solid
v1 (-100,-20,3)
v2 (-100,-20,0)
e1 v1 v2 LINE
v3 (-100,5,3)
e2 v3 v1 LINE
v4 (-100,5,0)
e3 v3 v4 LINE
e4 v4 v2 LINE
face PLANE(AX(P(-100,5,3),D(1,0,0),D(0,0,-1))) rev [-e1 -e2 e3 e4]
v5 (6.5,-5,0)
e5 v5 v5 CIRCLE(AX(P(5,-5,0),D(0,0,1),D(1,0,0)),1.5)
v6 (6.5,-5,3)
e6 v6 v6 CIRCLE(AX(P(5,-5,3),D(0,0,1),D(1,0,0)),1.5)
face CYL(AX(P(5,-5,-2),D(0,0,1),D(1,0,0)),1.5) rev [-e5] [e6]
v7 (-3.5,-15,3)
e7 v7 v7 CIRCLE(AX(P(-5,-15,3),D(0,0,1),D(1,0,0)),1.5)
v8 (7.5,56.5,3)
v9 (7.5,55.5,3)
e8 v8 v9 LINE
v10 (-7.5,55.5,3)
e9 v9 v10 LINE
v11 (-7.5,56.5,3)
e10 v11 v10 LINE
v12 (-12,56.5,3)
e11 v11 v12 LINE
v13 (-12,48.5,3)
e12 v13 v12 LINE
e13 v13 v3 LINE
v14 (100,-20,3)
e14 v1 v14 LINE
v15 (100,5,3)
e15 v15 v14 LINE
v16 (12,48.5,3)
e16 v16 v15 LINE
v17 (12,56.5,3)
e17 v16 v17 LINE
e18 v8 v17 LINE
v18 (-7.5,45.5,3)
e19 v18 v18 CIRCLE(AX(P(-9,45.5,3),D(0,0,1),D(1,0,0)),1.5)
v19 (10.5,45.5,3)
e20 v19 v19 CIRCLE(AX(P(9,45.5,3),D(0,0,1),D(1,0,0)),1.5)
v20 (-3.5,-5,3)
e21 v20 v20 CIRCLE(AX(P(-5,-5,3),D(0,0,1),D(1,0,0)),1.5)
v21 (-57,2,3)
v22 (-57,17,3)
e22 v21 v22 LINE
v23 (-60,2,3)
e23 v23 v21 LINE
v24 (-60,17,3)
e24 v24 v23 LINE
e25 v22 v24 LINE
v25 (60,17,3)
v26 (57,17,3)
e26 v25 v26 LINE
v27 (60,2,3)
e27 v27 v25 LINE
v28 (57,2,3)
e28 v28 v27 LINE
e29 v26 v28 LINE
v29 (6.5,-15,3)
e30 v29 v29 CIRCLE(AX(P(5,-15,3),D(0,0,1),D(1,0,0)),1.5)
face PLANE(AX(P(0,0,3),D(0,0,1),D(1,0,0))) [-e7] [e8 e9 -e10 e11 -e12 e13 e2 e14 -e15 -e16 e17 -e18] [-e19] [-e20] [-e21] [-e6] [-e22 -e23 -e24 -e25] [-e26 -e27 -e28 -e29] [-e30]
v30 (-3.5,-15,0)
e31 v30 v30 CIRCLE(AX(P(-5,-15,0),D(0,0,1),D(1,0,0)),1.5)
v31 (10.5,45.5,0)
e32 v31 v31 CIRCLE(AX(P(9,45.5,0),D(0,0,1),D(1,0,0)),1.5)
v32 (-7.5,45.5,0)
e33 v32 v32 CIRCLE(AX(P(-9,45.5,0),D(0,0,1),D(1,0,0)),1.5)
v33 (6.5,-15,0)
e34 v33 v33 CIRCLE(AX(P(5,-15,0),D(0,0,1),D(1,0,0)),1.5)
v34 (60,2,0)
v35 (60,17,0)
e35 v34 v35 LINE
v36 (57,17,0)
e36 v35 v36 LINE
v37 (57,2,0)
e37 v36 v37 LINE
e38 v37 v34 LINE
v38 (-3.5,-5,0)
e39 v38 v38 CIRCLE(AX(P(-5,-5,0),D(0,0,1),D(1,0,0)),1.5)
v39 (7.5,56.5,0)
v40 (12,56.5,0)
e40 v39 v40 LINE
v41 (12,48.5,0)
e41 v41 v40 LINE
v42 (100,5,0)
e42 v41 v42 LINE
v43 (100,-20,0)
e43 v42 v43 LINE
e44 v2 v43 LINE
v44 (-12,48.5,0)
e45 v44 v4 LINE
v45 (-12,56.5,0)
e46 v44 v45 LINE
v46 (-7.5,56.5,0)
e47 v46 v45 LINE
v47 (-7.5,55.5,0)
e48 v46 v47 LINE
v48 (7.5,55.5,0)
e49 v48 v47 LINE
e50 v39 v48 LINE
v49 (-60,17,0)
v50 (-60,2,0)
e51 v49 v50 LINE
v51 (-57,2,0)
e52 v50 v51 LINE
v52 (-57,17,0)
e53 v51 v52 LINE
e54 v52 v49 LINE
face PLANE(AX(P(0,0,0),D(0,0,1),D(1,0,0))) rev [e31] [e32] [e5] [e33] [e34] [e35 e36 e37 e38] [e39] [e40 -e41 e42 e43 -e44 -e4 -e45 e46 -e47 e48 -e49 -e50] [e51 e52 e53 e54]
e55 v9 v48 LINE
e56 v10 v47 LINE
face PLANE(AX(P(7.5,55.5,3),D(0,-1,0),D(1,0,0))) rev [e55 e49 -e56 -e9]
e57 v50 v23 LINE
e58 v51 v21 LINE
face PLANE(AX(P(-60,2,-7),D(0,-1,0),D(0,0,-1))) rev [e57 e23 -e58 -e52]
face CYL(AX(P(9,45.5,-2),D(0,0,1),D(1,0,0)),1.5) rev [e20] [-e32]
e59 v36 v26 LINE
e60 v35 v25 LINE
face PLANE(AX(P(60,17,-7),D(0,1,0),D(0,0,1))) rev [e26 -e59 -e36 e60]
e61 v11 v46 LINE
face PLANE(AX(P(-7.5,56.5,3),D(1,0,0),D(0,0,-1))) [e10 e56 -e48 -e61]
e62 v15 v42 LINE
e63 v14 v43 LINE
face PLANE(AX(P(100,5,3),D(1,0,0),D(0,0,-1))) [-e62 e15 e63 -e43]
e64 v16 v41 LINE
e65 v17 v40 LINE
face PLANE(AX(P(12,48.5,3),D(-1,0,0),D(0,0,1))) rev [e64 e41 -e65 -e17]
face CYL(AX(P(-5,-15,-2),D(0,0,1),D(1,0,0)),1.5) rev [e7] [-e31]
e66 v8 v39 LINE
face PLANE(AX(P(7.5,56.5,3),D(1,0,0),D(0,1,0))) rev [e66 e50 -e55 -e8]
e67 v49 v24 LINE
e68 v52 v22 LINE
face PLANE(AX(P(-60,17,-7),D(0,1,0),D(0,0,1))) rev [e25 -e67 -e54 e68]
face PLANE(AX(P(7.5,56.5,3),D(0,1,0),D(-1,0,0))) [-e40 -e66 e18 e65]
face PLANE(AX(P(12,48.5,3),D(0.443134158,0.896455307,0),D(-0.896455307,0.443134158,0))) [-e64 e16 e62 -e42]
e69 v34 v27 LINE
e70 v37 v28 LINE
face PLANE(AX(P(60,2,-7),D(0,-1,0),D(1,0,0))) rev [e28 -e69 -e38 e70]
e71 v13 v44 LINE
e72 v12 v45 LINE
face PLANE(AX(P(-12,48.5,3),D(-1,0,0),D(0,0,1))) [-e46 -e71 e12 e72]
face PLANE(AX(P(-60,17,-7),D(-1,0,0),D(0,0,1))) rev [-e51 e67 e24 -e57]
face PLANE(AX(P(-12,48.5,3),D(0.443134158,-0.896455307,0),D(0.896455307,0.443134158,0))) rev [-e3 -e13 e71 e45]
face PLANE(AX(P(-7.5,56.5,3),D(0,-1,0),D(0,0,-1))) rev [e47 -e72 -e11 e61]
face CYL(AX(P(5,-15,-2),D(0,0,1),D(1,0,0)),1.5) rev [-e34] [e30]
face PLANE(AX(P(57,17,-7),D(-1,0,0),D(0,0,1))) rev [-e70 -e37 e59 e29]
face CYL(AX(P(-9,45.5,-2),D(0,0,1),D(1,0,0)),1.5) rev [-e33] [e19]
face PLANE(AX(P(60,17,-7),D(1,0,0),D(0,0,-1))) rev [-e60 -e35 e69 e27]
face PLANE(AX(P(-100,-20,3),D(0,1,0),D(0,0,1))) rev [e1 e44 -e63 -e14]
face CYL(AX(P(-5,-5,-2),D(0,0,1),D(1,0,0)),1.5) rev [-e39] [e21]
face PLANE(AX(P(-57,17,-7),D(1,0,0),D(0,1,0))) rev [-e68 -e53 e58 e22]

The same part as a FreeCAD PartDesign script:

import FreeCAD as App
import Part
import Sketcher


def add_polygon(sketch, points):
    """Adds a closed chain of lines whose ends are joined by coincident constraints."""
    first, n = sketch.GeometryCount, len(points)
    for a, b in zip(points, points[1:] + points[:1]):
        sketch.addGeometry(Part.LineSegment(App.Vector(*a, 0), App.Vector(*b, 0)), False)
    for i in range(n):
        sketch.addConstraint(Sketcher.Constraint("Coincident", first + i, 2, first + (i + 1) % n, 1))

doc = App.newDocument("Part")
body = doc.addObject("PartDesign::Body", "Body")

# Sketch on XY plane
sketch1 = body.newObject("Sketcher::SketchObject", "Sketch")
sketch1.AttachmentSupport = (doc.getObject("XY_Plane"), [""])
sketch1.MapMode = "FlatFace"
add_polygon(sketch1, [(-7.5, 55.5), (-7.5, 56.5), (-12, 56.5), (-12, 48.5), (-100, 5), (-100, -20), (100, -20), (100, 5), (12, 48.5), (12, 56.5), (7.5, 56.5), (7.5, 55.5)])  # lines 0-11
sketch1.addConstraint([
    Sketcher.Constraint("Vertical", 0),
    Sketcher.Constraint("Horizontal", 1),
    Sketcher.Constraint("Vertical", 2),
    Sketcher.Constraint("Vertical", 4),
    Sketcher.Constraint("Horizontal", 5),
    Sketcher.Constraint("Vertical", 6),
    Sketcher.Constraint("Vertical", 8),
    Sketcher.Constraint("Horizontal", 9),
    Sketcher.Constraint("Vertical", 10),
    Sketcher.Constraint("Horizontal", 11),
    Sketcher.Constraint("Symmetric", 3, 2, 6, 2, -2),
    Sketcher.Constraint("Symmetric", 2, 2, 7, 2, -2),
    Sketcher.Constraint("Symmetric", 0, 2, 9, 2, -2),
    Sketcher.Constraint("DistanceX", 5, 1, 5, 2, 200.0),
    Sketcher.Constraint("DistanceX", 11, 2, 11, 1, 15.0),
    Sketcher.Constraint("DistanceY", 0, 1, 0, 2, 1.0),
    Sketcher.Constraint("DistanceY", 2, 2, 2, 1, 8.0),
    Sketcher.Constraint("DistanceY", 4, 2, 4, 1, 25.0),
    Sketcher.Constraint("DistanceX", 1, 2, 1, 1, 4.5),
    Sketcher.Constraint("DistanceY", -1, 1, 3, 2, 5.0),
    Sketcher.Constraint("DistanceY", -1, 1, 0, 2, 56.5),
])
pad1 = body.newObject("PartDesign::Pad", "Pad")
pad1.Profile = sketch1
pad1.Length = 3

# Sketch on XY plane
sketch2 = body.newObject("Sketcher::SketchObject", "Sketch001")
sketch2.AttachmentSupport = (doc.getObject("XY_Plane"), [""])
sketch2.MapMode = "FlatFace"
sketch2.AttachmentOffset = App.Placement(App.Vector(0, 0, 3), App.Rotation())
sketch2.addGeometry([
    Part.Circle(App.Vector(-5, -5, 0), App.Vector(0, 0, 1), 1.5),
    Part.Circle(App.Vector(5, -5, 0), App.Vector(0, 0, 1), 1.5),
    Part.Circle(App.Vector(-5, -15, 0), App.Vector(0, 0, 1), 1.5),
    Part.Circle(App.Vector(5, -15, 0), App.Vector(0, 0, 1), 1.5),
], False)
sketch2.addConstraint([
    Sketcher.Constraint("Equal", 0, 1),
    Sketcher.Constraint("Equal", 1, 2),
    Sketcher.Constraint("Equal", 2, 3),
    Sketcher.Constraint("Symmetric", 0, 3, 1, 3, -2),
    Sketcher.Constraint("Symmetric", 2, 3, 3, 3, -2),
    Sketcher.Constraint("Vertical", 0, 3, 2, 3),
    Sketcher.Constraint("Diameter", 0, 3.0),
    Sketcher.Constraint("DistanceX", 0, 3, -1, 1, 5.0),
    Sketcher.Constraint("DistanceY", 0, 3, -1, 1, 5.0),
    Sketcher.Constraint("DistanceY", 2, 3, -1, 1, 15.0),
])
pocket1 = body.newObject("PartDesign::Pocket", "Pocket")
pocket1.Profile = sketch2
pocket1.Length = 5

# Sketch on XY plane
sketch3 = body.newObject("Sketcher::SketchObject", "Sketch002")
sketch3.AttachmentSupport = (doc.getObject("XY_Plane"), [""])
sketch3.MapMode = "FlatFace"
sketch3.AttachmentOffset = App.Placement(App.Vector(0, 0, 3), App.Rotation())
sketch3.addGeometry([
    Part.Circle(App.Vector(-9, 45.5, 0), App.Vector(0, 0, 1), 1.5),
    Part.Circle(App.Vector(9, 45.5, 0), App.Vector(0, 0, 1), 1.5),
], False)
sketch3.addConstraint([
    Sketcher.Constraint("Equal", 0, 1),
    Sketcher.Constraint("Symmetric", 0, 3, 1, 3, -2),
    Sketcher.Constraint("Diameter", 0, 3.0),
    Sketcher.Constraint("DistanceX", 0, 3, -1, 1, 9.0),
    Sketcher.Constraint("DistanceY", -1, 1, 0, 3, 45.5),
])
pocket2 = body.newObject("PartDesign::Pocket", "Pocket001")
pocket2.Profile = sketch3
pocket2.Length = 5

# Sketch on XY plane
sketch4 = body.newObject("Sketcher::SketchObject", "Sketch003")
sketch4.AttachmentSupport = (doc.getObject("XY_Plane"), [""])
sketch4.MapMode = "FlatFace"
sketch4.AttachmentOffset = App.Placement(App.Vector(0, 0, 3), App.Rotation())
add_polygon(sketch4, [(-60, 17), (-60, 2), (-57, 2), (-57, 17)])  # lines 0-3
add_polygon(sketch4, [(57, 17), (57, 2), (60, 2), (60, 17)])  # lines 4-7
sketch4.addConstraint([
    Sketcher.Constraint("Vertical", 0),
    Sketcher.Constraint("Horizontal", 1),
    Sketcher.Constraint("Vertical", 2),
    Sketcher.Constraint("Horizontal", 3),
    Sketcher.Constraint("Vertical", 4),
    Sketcher.Constraint("Horizontal", 5),
    Sketcher.Constraint("Vertical", 6),
    Sketcher.Constraint("Horizontal", 7),
    Sketcher.Constraint("Symmetric", 1, 2, 4, 2, -2),
    Sketcher.Constraint("Symmetric", 3, 2, 6, 2, -2),
    Sketcher.Constraint("DistanceX", 1, 1, 1, 2, 3.0),
    Sketcher.Constraint("DistanceY", 0, 2, 0, 1, 15.0),
    Sketcher.Constraint("DistanceX", 0, 2, -1, 1, 60.0),
    Sketcher.Constraint("DistanceY", -1, 1, 0, 2, 2.0),
])
pocket3 = body.newObject("PartDesign::Pocket", "Pocket002")
pocket3.Profile = sketch4
pocket3.Length = 10

doc.recompute()
